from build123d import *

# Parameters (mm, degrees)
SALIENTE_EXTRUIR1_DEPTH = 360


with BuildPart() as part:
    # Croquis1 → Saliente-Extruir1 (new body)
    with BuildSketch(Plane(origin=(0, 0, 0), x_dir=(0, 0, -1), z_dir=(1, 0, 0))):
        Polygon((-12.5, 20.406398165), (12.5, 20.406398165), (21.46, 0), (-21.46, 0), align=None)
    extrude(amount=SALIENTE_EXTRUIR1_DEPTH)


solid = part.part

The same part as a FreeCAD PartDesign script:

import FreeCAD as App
import Part
import Sketcher
Q = App.Units.Quantity


def add_polygon(sketch, points):
    """Adds a closed chain of lines whose ends are joined by coincident constraints."""
    first, n = sketch.GeometryCount, len(points)
    for a, b in zip(points, points[1:] + points[:1]):
        sketch.addGeometry(Part.LineSegment(App.Vector(*a, 0), App.Vector(*b, 0)), False)
    for i in range(n):
        sketch.addConstraint(Sketcher.Constraint("Coincident", first + i, 2, first + (i + 1) % n, 1))

doc = App.newDocument("Part")
body = doc.addObject("PartDesign::Body", "Body")

sketch1 = doc.addObject("Sketcher::SketchObject", "Sketch")
body.addObject(sketch1)
sketch1.AttachmentSupport = (doc.YZ_Plane, [""])
sketch1.MapMode = "FlatFace"
add_polygon(sketch1, [(20, -12), (20, 12), (0, 21), (0, -21)])
sketch1.addConstraint([
    Sketcher.Constraint("Vertical", 0),
    Sketcher.Constraint("Vertical", 2),
    Sketcher.Constraint("Symmetric", 1, 2, 2, 2, -1, 1),
    Sketcher.Constraint("Equal", 1, 3),
    Sketcher.Constraint("DistanceY", 0, 1, 0, 2, Q("25 mm")),
    Sketcher.Constraint("DistanceY", 2, 2, 2, 1, Q("42.92 mm")),
    Sketcher.Constraint("DistanceX", -1, 1, 0, 2, Q("20.406398 mm")),
])
pad1 = doc.addObject("PartDesign::Pad", "Pad")
body.addObject(pad1)
pad1.Profile = sketch1
pad1.Length = 360

doc.recompute()
